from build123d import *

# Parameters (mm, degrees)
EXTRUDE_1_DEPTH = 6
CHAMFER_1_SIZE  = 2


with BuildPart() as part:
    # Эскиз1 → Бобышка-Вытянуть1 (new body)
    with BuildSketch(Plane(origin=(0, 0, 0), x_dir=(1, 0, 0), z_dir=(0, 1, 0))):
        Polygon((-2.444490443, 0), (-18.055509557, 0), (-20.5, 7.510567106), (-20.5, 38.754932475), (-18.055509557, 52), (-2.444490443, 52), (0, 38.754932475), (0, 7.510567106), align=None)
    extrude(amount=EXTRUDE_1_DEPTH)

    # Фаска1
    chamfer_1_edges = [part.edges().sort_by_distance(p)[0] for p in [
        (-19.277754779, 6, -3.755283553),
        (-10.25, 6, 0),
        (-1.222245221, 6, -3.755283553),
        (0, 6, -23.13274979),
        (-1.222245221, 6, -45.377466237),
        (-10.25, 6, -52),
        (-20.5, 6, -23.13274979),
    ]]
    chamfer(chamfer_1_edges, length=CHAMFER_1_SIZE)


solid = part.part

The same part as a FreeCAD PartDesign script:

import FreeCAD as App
import Part
import Sketcher

V = App.Vector
Q = App.Units.Quantity


def edges_at(feature, points):
    """Names of the edges that pass closest to the given points."""
    edges = feature.Shape.Edges
    near = lambda p: min(range(len(edges)), key=lambda i: edges[i].distToShape(Part.Vertex(*p))[0])
    return sorted({f"Edge{near(p) + 1}" for p in points})

doc = App.newDocument("Part")
body = doc.addObject("PartDesign::Body", "Body")

# Sketch on XZ plane
sketch1 = doc.addObject("Sketcher::SketchObject", "Sketch")
body.addObject(sketch1)
sketch1.AttachmentSupport = (doc.XZ_Plane, [""])
sketch1.MapMode = "FlatFace"
sketch1.addGeometry([
    Part.LineSegment(V(-18, 0, 0), V(-2, 0, 0)),  # 0
    Part.LineSegment(V(-2, 0, 0), V(0, -8, 0)),  # 1
    Part.LineSegment(V(0, -8, 0), V(0, -39, 0)),  # 2
    Part.LineSegment(V(0, -39, 0), V(-2, -52, 0)),  # 3
    Part.LineSegment(V(-2, -52, 0), V(-18, -52, 0)),  # 4
    Part.LineSegment(V(-18, -52, 0), V(-20, -39, 0)),  # 5
    Part.LineSegment(V(-20, -39, 0), V(-20, -8, 0)),  # 6
    Part.LineSegment(V(-20, -8, 0), V(-18, 0, 0)),  # 7
], False)
sketch1.addConstraint([
    Sketcher.Constraint("Coincident", 0, 2, 1, 1),
    Sketcher.Constraint("Coincident", 1, 2, 2, 1),
    Sketcher.Constraint("Coincident", 2, 2, 3, 1),
    Sketcher.Constraint("Coincident", 3, 2, 4, 1),
    Sketcher.Constraint("Coincident", 4, 2, 5, 1),
    Sketcher.Constraint("Coincident", 5, 2, 6, 1),
    Sketcher.Constraint("Coincident", 6, 2, 7, 1),
    Sketcher.Constraint("Coincident", 7, 2, 0, 1),
    Sketcher.Constraint("Horizontal", 0),
    Sketcher.Constraint("Vertical", 2),
    Sketcher.Constraint("Horizontal", 4),
    Sketcher.Constraint("Vertical", 6),
    Sketcher.Constraint("PointOnObject", 0, 2, -1),
    Sketcher.Constraint("PointOnObject", 1, 2, -2),
    Sketcher.Constraint("Horizontal", 2, 2, 5, 2),
    Sketcher.Constraint("Horizontal", 1, 2, 6, 2),
    Sketcher.Constraint("Vertical", 0, 2, 3, 2),
    Sketcher.Constraint("Vertical", 4, 2, 7, 2),
    Sketcher.Constraint("Equal", 3, 5),
    Sketcher.Constraint("DistanceY", 3, 2, -1, 1, Q("52 mm")),
    Sketcher.Constraint("DistanceX", 5, 2, -1, 1, Q("20.5 mm")),
    Sketcher.Constraint("DistanceX", 0, 1, 0, 2, Q("15.611019 mm")),
    Sketcher.Constraint("DistanceY", 2, 2, 2, 1, Q("31.244365 mm")),
    Sketcher.Constraint("Distance", 1, Q("7.898364 mm")),
])
pad1 = doc.addObject("PartDesign::Pad", "Pad")
body.addObject(pad1)
pad1.Profile = sketch1
pad1.Length = 6
pad1.Reversed = True
doc.recompute()

chamfer = doc.addObject("PartDesign::Chamfer", "Chamfer")
body.addObject(chamfer)
chamfer.Base = (pad1, edges_at(pad1, [
    (-19.278, 6, -3.755),
    (-10.25, 6, 0),
    (-1.222, 6, -3.755),
    (0, 6, -23.133),
    (-1.222, 6, -45.377),
    (-10.25, 6, -52),
    (-20.5, 6, -23.133),
]))
chamfer.Size = 2

doc.recompute()
